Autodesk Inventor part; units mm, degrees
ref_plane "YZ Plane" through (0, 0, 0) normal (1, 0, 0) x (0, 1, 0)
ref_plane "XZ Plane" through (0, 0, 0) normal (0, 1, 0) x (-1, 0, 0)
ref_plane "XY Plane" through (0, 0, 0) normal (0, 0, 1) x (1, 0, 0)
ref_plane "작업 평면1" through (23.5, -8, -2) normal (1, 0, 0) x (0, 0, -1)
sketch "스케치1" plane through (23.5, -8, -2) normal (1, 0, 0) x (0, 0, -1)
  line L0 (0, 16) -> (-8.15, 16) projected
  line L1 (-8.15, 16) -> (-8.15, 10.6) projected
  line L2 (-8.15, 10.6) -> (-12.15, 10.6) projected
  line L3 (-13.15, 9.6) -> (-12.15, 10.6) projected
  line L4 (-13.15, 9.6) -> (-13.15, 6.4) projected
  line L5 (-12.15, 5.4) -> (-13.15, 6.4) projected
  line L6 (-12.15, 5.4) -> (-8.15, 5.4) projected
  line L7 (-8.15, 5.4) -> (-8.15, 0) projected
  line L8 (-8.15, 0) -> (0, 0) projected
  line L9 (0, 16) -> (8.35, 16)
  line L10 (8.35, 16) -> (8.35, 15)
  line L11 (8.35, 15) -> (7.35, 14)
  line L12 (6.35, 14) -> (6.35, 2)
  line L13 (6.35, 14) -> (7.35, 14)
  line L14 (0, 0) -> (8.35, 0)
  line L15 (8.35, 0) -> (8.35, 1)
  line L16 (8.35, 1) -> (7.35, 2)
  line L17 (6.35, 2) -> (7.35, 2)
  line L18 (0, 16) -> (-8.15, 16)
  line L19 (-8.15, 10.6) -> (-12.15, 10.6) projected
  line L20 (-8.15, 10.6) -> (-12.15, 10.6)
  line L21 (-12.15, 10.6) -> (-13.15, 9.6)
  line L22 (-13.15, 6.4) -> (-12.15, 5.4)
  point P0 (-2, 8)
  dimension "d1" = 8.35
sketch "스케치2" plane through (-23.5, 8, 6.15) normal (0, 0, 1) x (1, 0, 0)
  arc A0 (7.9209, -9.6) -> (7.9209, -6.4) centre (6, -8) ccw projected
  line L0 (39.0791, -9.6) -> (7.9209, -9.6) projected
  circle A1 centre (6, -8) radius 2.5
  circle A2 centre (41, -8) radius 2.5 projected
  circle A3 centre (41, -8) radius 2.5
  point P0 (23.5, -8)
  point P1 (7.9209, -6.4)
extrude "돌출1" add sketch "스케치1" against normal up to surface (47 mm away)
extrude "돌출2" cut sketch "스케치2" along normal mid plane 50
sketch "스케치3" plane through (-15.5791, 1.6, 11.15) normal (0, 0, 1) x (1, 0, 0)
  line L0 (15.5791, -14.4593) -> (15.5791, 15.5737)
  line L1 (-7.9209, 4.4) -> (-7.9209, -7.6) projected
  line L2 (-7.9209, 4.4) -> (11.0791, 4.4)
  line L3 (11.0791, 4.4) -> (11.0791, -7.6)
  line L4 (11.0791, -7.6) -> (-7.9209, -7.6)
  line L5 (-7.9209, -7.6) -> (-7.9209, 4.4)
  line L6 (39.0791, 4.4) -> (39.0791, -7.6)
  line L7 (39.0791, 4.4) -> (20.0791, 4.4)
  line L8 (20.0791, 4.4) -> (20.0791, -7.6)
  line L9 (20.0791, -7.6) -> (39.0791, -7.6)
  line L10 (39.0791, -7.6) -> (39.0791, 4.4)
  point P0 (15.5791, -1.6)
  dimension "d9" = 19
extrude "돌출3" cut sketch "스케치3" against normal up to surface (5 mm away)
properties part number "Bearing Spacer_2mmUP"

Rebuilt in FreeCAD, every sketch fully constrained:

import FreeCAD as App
import Part
import Sketcher
from FreeCAD import Vector
Q = App.Units.Quantity


def add_polygon(sketch, points):
    """Adds a closed chain of lines whose ends are joined by coincident constraints."""
    first, n = sketch.GeometryCount, len(points)
    for a, b in zip(points, points[1:] + points[:1]):
        sketch.addGeometry(Part.LineSegment(App.Vector(*a, 0), App.Vector(*b, 0)), False)
    for i in range(n):
        sketch.addConstraint(Sketcher.Constraint("Coincident", first + i, 2, first + (i + 1) % n, 1))

doc = App.newDocument("Part")
body = doc.addObject("PartDesign::Body", "Body")

# Sketch on YZ plane
sketch1 = body.newObject("Sketcher::SketchObject", "Sketch")
sketch1.AttachmentSupport = (doc.getObject("YZ_Plane"), [""])
sketch1.MapMode = "FlatFace"
sketch1.AttachmentOffset = App.Placement(Vector(0, 0, 23.5), App.Rotation())
add_polygon(sketch1, [(8, -10.3), (8, 6.2), (2.6, 6.2), (2.6, 10.2), (1.6, 11.2), (-1.6, 11.2), (-2.6, 10.2), (-2.6, 6.2), (-8, 6.2), (-8, -10.3), (-7, -10.3), (-6, -9.3), (-6, -8.3), (6, -8.3), (6, -9.3), (7, -10.3)])  # lines 0-15
sketch1.addConstraint([
    Sketcher.Constraint("Vertical", 0),
    Sketcher.Constraint("Horizontal", 1),
    Sketcher.Constraint("Vertical", 2),
    Sketcher.Constraint("Horizontal", 4),
    Sketcher.Constraint("Vertical", 6),
    Sketcher.Constraint("Horizontal", 7),
    Sketcher.Constraint("Vertical", 8),
    Sketcher.Constraint("Horizontal", 9),
    Sketcher.Constraint("Vertical", 11),
    Sketcher.Constraint("Horizontal", 12),
    Sketcher.Constraint("Vertical", 13),
    Sketcher.Constraint("Horizontal", 15),
    Sketcher.Constraint("Symmetric", 2, 2, 5, 2, -2),
    Sketcher.Constraint("Symmetric", 0, 2, 7, 2, -2),
    Sketcher.Constraint("Symmetric", 10, 2, 13, 2, -2),
    Sketcher.Constraint("Symmetric", 9, 2, 14, 2, -2),
    Sketcher.Constraint("Perpendicular", 3, 5),
    Sketcher.Constraint("Parallel", 5, 10),
    Sketcher.Constraint("Perpendicular", 10, 14),
    Sketcher.Constraint("Equal", 15, 11),
    Sketcher.Constraint("Equal", 5, 10),
    Sketcher.Constraint("DistanceX", 9, 1, 9, 2, Q("1 mm")),
    Sketcher.Constraint("DistanceX", 12, 1, 12, 2, Q("12 mm")),
    Sketcher.Constraint("DistanceY", 2, 1, 2, 2, Q("4 mm")),
    Sketcher.Constraint("DistanceY", 11, 2, -1, 1, Q("8.35 mm")),
    Sketcher.Constraint("DistanceX", 1, 2, 1, 1, Q("5.4 mm")),
    Sketcher.Constraint("DistanceY", 0, 1, 0, 2, Q("16.5 mm")),
    Sketcher.Constraint("DistanceX", -1, 1, 0, 2, Q("8 mm")),
])
pad1 = body.newObject("PartDesign::Pad", "Pad")
pad1.Profile = sketch1
pad1.Length = 47
pad1.Reversed = True

# Sketch on XY plane
sketch2 = body.newObject("Sketcher::SketchObject", "Sketch001")
sketch2.AttachmentSupport = (doc.getObject("XY_Plane"), [""])
sketch2.MapMode = "FlatFace"
sketch2.AttachmentOffset = App.Placement(Vector(0, 0, 6.15), App.Rotation())
sketch2.addGeometry([
    Part.Circle(Vector(-17.5, 0, 0), Vector(0, 0, 1), 2.5),
    Part.Circle(Vector(17.5, 0, 0), Vector(0, 0, 1), 2.5),
], False)
sketch2.addConstraint([
    Sketcher.Constraint("Equal", 0, 1),
    Sketcher.Constraint("Symmetric", 0, 3, 1, 3, -1, 1),
    Sketcher.Constraint("PointOnObject", 0, 3, -1),
    Sketcher.Constraint("Diameter", 0, Q("5 mm")),
    Sketcher.Constraint("DistanceX", 0, 3, 1, 3, Q("35 mm")),
])
pocket1 = body.newObject("PartDesign::Pocket", "Pocket")
pocket1.Profile = sketch2
pocket1.Length = 50
pocket1.Midplane = True

# Sketch on XY plane
sketch3 = body.newObject("Sketcher::SketchObject", "Sketch002")
sketch3.AttachmentSupport = (doc.getObject("XY_Plane"), [""])
sketch3.MapMode = "FlatFace"
sketch3.AttachmentOffset = App.Placement(Vector(0, 0, 11.15), App.Rotation())
add_polygon(sketch3, [(-4, 6), (-24, 6), (-24, -6), (-4, -6)])  # lines 0-3
add_polygon(sketch3, [(24, -6), (24, 6), (4, 6), (4, -6)])  # lines 4-7
sketch3.addConstraint([
    Sketcher.Constraint("Horizontal", 0),
    Sketcher.Constraint("Vertical", 1),
    Sketcher.Constraint("Horizontal", 2),
    Sketcher.Constraint("Vertical", 3),
    Sketcher.Constraint("Vertical", 4),
    Sketcher.Constraint("Horizontal", 5),
    Sketcher.Constraint("Vertical", 6),
    Sketcher.Constraint("Horizontal", 7),
    Sketcher.Constraint("Symmetric", 1, 2, 4, 2, -1, 1),
    Sketcher.Constraint("Symmetric", 3, 2, 6, 2, -1, 1),
    Sketcher.Constraint("Horizontal", 3, 2, 4, 2),
    Sketcher.Constraint("DistanceX", 0, 2, 0, 1, Q("19 mm")),
    Sketcher.Constraint("DistanceY", 1, 2, 1, 1, Q("12 mm")),
    Sketcher.Constraint("DistanceX", 3, 2, 4, 2, Q("28 mm")),
])
pocket2 = body.newObject("PartDesign::Pocket", "Pocket001")
pocket2.Profile = sketch3
pocket2.Length = 5

doc.recompute()
